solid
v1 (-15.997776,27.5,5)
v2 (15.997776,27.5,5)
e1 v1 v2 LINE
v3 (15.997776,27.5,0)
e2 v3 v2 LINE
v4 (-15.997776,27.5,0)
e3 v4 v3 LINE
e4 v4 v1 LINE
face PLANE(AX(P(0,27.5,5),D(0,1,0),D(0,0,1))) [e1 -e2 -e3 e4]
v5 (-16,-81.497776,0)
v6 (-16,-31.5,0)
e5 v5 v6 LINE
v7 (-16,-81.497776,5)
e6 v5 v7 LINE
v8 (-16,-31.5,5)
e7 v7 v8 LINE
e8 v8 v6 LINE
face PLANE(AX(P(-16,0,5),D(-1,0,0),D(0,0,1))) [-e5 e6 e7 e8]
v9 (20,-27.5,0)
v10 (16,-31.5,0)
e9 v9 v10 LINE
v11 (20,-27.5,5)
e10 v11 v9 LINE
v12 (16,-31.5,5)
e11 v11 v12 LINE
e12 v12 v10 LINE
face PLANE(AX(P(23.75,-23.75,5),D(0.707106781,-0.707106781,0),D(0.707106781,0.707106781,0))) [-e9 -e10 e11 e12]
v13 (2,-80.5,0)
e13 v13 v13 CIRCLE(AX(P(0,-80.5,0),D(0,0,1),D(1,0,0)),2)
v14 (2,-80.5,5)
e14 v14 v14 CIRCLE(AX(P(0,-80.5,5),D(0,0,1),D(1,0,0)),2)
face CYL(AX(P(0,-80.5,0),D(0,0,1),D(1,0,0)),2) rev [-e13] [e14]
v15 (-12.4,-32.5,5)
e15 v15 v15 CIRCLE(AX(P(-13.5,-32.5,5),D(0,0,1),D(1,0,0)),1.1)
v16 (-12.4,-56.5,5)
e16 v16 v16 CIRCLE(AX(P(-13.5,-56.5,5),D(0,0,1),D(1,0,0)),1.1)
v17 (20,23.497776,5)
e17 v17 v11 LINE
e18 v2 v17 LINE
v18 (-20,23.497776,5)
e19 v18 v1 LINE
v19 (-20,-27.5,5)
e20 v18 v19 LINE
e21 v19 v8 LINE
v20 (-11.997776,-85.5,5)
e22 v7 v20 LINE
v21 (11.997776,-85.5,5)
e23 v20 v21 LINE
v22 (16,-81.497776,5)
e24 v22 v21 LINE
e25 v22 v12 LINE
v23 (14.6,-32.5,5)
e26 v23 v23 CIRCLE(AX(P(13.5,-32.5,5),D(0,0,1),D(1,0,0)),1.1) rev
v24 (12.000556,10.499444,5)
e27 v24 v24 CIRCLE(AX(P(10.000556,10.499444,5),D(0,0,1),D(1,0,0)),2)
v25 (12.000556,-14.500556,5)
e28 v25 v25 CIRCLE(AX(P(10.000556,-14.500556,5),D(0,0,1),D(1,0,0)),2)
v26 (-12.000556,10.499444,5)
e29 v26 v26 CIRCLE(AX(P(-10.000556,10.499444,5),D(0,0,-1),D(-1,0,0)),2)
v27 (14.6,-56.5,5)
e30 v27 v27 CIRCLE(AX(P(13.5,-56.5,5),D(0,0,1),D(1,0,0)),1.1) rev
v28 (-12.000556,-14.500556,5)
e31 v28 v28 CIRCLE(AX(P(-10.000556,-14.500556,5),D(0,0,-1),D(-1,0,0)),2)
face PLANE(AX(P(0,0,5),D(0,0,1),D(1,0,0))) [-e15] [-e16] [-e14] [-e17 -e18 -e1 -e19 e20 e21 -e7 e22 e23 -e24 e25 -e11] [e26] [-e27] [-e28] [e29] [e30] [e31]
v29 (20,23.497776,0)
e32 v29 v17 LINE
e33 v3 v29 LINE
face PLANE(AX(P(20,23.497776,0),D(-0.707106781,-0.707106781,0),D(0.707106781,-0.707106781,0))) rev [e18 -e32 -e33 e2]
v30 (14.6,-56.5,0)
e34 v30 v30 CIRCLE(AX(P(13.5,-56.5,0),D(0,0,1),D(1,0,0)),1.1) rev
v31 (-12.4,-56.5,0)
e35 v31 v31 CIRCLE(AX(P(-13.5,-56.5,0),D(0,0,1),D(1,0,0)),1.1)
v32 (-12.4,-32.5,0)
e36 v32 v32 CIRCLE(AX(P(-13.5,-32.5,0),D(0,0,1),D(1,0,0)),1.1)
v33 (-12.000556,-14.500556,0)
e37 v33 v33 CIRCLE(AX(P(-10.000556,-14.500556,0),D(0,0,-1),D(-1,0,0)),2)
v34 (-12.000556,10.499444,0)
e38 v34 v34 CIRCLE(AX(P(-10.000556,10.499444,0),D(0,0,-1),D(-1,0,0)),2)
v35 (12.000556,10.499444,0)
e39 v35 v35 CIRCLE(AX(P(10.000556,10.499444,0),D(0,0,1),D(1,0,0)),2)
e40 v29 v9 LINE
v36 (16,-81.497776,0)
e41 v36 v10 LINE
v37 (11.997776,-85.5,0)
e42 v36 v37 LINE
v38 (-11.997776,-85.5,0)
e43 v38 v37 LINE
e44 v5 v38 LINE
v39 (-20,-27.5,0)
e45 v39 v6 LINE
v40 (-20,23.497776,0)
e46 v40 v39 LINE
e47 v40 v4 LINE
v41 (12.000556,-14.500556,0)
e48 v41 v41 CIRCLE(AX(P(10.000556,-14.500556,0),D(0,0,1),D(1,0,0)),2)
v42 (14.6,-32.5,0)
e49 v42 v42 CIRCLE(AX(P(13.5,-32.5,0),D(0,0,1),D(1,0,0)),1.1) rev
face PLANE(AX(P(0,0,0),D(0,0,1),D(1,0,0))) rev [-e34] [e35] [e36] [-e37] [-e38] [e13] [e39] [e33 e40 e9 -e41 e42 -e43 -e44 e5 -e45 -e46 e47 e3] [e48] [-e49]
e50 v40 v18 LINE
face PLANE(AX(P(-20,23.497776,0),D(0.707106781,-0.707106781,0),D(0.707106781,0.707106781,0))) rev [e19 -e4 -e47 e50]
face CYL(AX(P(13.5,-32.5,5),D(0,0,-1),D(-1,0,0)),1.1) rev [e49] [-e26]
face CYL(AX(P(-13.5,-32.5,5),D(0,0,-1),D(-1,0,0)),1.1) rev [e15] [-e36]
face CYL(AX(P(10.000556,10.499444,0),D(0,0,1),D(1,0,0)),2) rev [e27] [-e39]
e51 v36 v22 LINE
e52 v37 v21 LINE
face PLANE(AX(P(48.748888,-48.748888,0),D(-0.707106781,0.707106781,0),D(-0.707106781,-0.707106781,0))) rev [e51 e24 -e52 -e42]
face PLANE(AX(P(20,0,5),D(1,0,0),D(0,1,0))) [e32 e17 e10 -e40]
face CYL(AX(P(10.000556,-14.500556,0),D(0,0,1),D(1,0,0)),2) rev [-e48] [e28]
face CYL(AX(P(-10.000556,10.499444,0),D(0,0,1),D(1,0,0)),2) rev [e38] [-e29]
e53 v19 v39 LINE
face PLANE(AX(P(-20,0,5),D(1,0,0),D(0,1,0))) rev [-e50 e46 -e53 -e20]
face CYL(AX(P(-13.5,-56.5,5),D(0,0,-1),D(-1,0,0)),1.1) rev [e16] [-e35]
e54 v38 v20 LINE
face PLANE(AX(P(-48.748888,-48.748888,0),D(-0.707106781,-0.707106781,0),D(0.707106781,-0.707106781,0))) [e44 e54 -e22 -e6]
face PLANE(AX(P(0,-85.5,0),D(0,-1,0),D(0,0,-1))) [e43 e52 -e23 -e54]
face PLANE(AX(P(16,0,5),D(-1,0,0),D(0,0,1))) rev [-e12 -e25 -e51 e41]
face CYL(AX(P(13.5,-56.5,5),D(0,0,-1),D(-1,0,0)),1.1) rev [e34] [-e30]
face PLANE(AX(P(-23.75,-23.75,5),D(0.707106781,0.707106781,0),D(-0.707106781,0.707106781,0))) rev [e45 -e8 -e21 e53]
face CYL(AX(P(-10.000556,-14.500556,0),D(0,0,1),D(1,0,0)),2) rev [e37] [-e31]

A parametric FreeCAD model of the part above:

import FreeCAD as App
import Part
import Sketcher
from FreeCAD import Vector
Q = App.Units.Quantity

doc = App.newDocument("Part")
body = doc.addObject("PartDesign::Body", "Body")

sketch1 = body.newObject("Sketcher::SketchObject", "Sketch")
sketch1.AttachmentSupport = (doc.getObject("XY_Plane"), [""])
sketch1.MapMode = "FlatFace"
sketch1.addGeometry(Part.LineSegment(Vector(20, 27.5, 0), Vector(-20, 27.5, 0)), False)
sketch1.addGeometry(Part.LineSegment(Vector(-20, 27.5, 0), Vector(-20, -27.5, 0)), False)
sketch1.addGeometry(Part.LineSegment(Vector(-20, -27.5, 0), Vector(-16, -31.5, 0)), False)
sketch1.addGeometry(Part.LineSegment(Vector(-16, -31.5, 0), Vector(-16, -61.5, 0)), False)
sketch1.addGeometry(Part.LineSegment(Vector(-16, -61.5, 0), Vector(16, -61.5, 0)), False)
sketch1.addGeometry(Part.LineSegment(Vector(16, -61.5, 0), Vector(16, -31.5, 0)), False)
sketch1.addGeometry(Part.LineSegment(Vector(16, -31.5, 0), Vector(20, -27.5, 0)), False)
sketch1.addGeometry(Part.LineSegment(Vector(20, -27.5, 0), Vector(20, 27.5, 0)), False)
sketch1.addGeometry(Part.Circle(Vector(-13.5, -56.5, 0), Vector(0, 0, 1), 1.1), False)
sketch1.addGeometry(Part.Circle(Vector(13.5, -56.5, 0), Vector(0, 0, 1), 1.1), False)
sketch1.addGeometry(Part.Circle(Vector(-13.5, -32.5, 0), Vector(0, 0, 1), 1.1), False)
sketch1.addGeometry(Part.Circle(Vector(13.5, -32.5, 0), Vector(0, 0, 1), 1.1), False)
sketch1.addConstraint(Sketcher.Constraint("Coincident", 0, 2, 1, 1))
sketch1.addConstraint(Sketcher.Constraint("Coincident", 1, 2, 2, 1))
sketch1.addConstraint(Sketcher.Constraint("Coincident", 2, 2, 3, 1))
sketch1.addConstraint(Sketcher.Constraint("Coincident", 3, 2, 4, 1))
sketch1.addConstraint(Sketcher.Constraint("Coincident", 4, 2, 5, 1))
sketch1.addConstraint(Sketcher.Constraint("Coincident", 5, 2, 6, 1))
sketch1.addConstraint(Sketcher.Constraint("Coincident", 6, 2, 7, 1))
sketch1.addConstraint(Sketcher.Constraint("Coincident", 7, 2, 0, 1))
sketch1.addConstraint(Sketcher.Constraint("Horizontal", 0))
sketch1.addConstraint(Sketcher.Constraint("Vertical", 1))
sketch1.addConstraint(Sketcher.Constraint("Vertical", 3))
sketch1.addConstraint(Sketcher.Constraint("Horizontal", 4))
sketch1.addConstraint(Sketcher.Constraint("Vertical", 5))
sketch1.addConstraint(Sketcher.Constraint("Vertical", 7))
sketch1.addConstraint(Sketcher.Constraint("Equal", 8, 9))
sketch1.addConstraint(Sketcher.Constraint("Equal", 9, 10))
sketch1.addConstraint(Sketcher.Constraint("Equal", 10, 11))
sketch1.addConstraint(Sketcher.Constraint("Symmetric", 0, 2, 6, 2, -1, 1))
sketch1.addConstraint(Sketcher.Constraint("Symmetric", 8, 3, 9, 3, -2))
sketch1.addConstraint(Sketcher.Constraint("Symmetric", 10, 3, 11, 3, -2))
sketch1.addConstraint(Sketcher.Constraint("Symmetric", 2, 2, 5, 2, -2))
sketch1.addConstraint(Sketcher.Constraint("Perpendicular", 2, 6))
sketch1.addConstraint(Sketcher.Constraint("Horizontal", 1, 2, 6, 2))
sketch1.addConstraint(Sketcher.Constraint("Vertical", 8, 3, 10, 3))
sketch1.addConstraint(Sketcher.Constraint("Diameter", 8, Q("2.2 mm")))
sketch1.addConstraint(Sketcher.Constraint("DistanceX", 0, 2, 0, 1, Q("40 mm")))
sketch1.addConstraint(Sketcher.Constraint("DistanceX", 4, 1, 4, 2, Q("32 mm")))
sketch1.addConstraint(Sketcher.Constraint("DistanceY", 1, 2, 1, 1, Q("55 mm")))
sketch1.addConstraint(Sketcher.Constraint("DistanceY", 3, 2, 3, 1, Q("30 mm")))
sketch1.addConstraint(Sketcher.Constraint("DistanceX", 8, 3, 9, 3, Q("27 mm")))
sketch1.addConstraint(Sketcher.Constraint("DistanceY", 8, 3, 10, 3, Q("24 mm")))
sketch1.addConstraint(Sketcher.Constraint("DistanceY", 10, 3, 0, 2, Q("60 mm")))
pad1 = body.newObject("PartDesign::Pad", "Pad")
pad1.Profile = sketch1
pad1.Length = 5

sketch2 = body.newObject("Sketcher::SketchObject", "Sketch001")
sketch2.AttachmentSupport = (doc.getObject("XY_Plane"), [""])
sketch2.MapMode = "FlatFace"
sketch2.AttachmentOffset = App.Placement(Vector(0, 0, 5), App.Rotation())
sketch2.addGeometry(Part.LineSegment(Vector(-20, 27.5, 0), Vector(-20, 23.5, 0)), False)
sketch2.addGeometry(Part.LineSegment(Vector(-20, 23.5, 0), Vector(-16, 27.5, 0)), False)
sketch2.addGeometry(Part.LineSegment(Vector(-16, 27.5, 0), Vector(-20, 27.5, 0)), False)
sketch2.addGeometry(Part.LineSegment(Vector(16, 27.5, 0), Vector(20, 23.5, 0)), False)
sketch2.addGeometry(Part.LineSegment(Vector(20, 23.5, 0), Vector(20, 27.5, 0)), False)
sketch2.addGeometry(Part.LineSegment(Vector(20, 27.5, 0), Vector(16, 27.5, 0)), False)
sketch2.addConstraint(Sketcher.Constraint("Coincident", 0, 2, 1, 1))
sketch2.addConstraint(Sketcher.Constraint("Coincident", 1, 2, 2, 1))
sketch2.addConstraint(Sketcher.Constraint("Coincident", 2, 2, 0, 1))
sketch2.addConstraint(Sketcher.Constraint("Coincident", 3, 2, 4, 1))
sketch2.addConstraint(Sketcher.Constraint("Coincident", 4, 2, 5, 1))
sketch2.addConstraint(Sketcher.Constraint("Coincident", 5, 2, 3, 1))
sketch2.addConstraint(Sketcher.Constraint("Vertical", 0))
sketch2.addConstraint(Sketcher.Constraint("Horizontal", 2))
sketch2.addConstraint(Sketcher.Constraint("Vertical", 4))
sketch2.addConstraint(Sketcher.Constraint("Horizontal", 5))
sketch2.addConstraint(Sketcher.Constraint("Symmetric", 0, 2, 3, 2, -2))
sketch2.addConstraint(Sketcher.Constraint("Symmetric", 1, 2, 5, 2, -2))
sketch2.addConstraint(Sketcher.Constraint("Perpendicular", 1, 3))
sketch2.addConstraint(Sketcher.Constraint("DistanceX", 0, 2, -1, 1, Q("20 mm")))
sketch2.addConstraint(Sketcher.Constraint("DistanceY", -1, 1, 1, 2, Q("27.5 mm")))
sketch2.addConstraint(Sketcher.Constraint("Distance", 1, Q("5.66 mm")))
pocket1 = body.newObject("PartDesign::Pocket", "Pocket")
pocket1.Profile = sketch2
pocket1.Type = "ThroughAll"

sketch3 = body.newObject("Sketcher::SketchObject", "Sketch002")
sketch3.AttachmentSupport = (doc.getObject("XY_Plane"), [""])
sketch3.MapMode = "FlatFace"
sketch3.AttachmentOffset = App.Placement(Vector(0, 0, 5), App.Rotation())
sketch3.addGeometry(Part.Circle(Vector(10, 10.5, 0), Vector(0, 0, 1), 2), False)
sketch3.addGeometry(Part.Circle(Vector(10, -14.5, 0), Vector(0, 0, 1), 2), False)
sketch3.addGeometry(Part.Circle(Vector(-10, 10.5, 0), Vector(0, 0, 1), 2), False)
sketch3.addGeometry(Part.Circle(Vector(-10, -14.5, 0), Vector(0, 0, 1), 2), False)
sketch3.addConstraint(Sketcher.Constraint("Equal", 0, 1))
sketch3.addConstraint(Sketcher.Constraint("Equal", 1, 2))
sketch3.addConstraint(Sketcher.Constraint("Equal", 2, 3))
sketch3.addConstraint(Sketcher.Constraint("Symmetric", 0, 3, 2, 3, -2))
sketch3.addConstraint(Sketcher.Constraint("Symmetric", 1, 3, 3, 3, -2))
sketch3.addConstraint(Sketcher.Constraint("Vertical", 0, 3, 1, 3))
sketch3.addConstraint(Sketcher.Constraint("Diameter", 0, Q("4 mm")))
sketch3.addConstraint(Sketcher.Constraint("DistanceY", 1, 3, 0, 3, Q("25 mm")))
sketch3.addConstraint(Sketcher.Constraint("DistanceX", -1, 1, 0, 3, Q("10.000556 mm")))
sketch3.addConstraint(Sketcher.Constraint("DistanceY", -1, 1, 0, 3, Q("10.499444 mm")))
pocket2 = body.newObject("PartDesign::Pocket", "Pocket001")
pocket2.Profile = sketch3
pocket2.Type = "ThroughAll"

sketch4 = body.newObject("Sketcher::SketchObject", "Sketch003")
sketch4.AttachmentSupport = (doc.getObject("XY_Plane"), [""])
sketch4.MapMode = "FlatFace"
sketch4.AttachmentOffset = App.Placement(Vector(0, 0, 5), App.Rotation())
sketch4.addGeometry(Part.LineSegment(Vector(-16, -62, 0), Vector(-16, -81, 0)), False)
sketch4.addGeometry(Part.LineSegment(Vector(-16, -81, 0), Vector(-12, -86, 0)), False)
sketch4.addGeometry(Part.LineSegment(Vector(-12, -86, 0), Vector(12, -86, 0)), False)
sketch4.addGeometry(Part.LineSegment(Vector(12, -86, 0), Vector(16, -81, 0)), False)
sketch4.addGeometry(Part.LineSegment(Vector(16, -81, 0), Vector(16, -62, 0)), False)
sketch4.addGeometry(Part.LineSegment(Vector(16, -62, 0), Vector(-16, -62, 0)), False)
sketch4.addConstraint(Sketcher.Constraint("Coincident", 0, 2, 1, 1))
sketch4.addConstraint(Sketcher.Constraint("Coincident", 1, 2, 2, 1))
sketch4.addConstraint(Sketcher.Constraint("Coincident", 2, 2, 3, 1))
sketch4.addConstraint(Sketcher.Constraint("Coincident", 3, 2, 4, 1))
sketch4.addConstraint(Sketcher.Constraint("Coincident", 4, 2, 5, 1))
sketch4.addConstraint(Sketcher.Constraint("Coincident", 5, 2, 0, 1))
sketch4.addConstraint(Sketcher.Constraint("Vertical", 0))
sketch4.addConstraint(Sketcher.Constraint("Horizontal", 2))
sketch4.addConstraint(Sketcher.Constraint("Vertical", 4))
sketch4.addConstraint(Sketcher.Constraint("Horizontal", 5))
sketch4.addConstraint(Sketcher.Constraint("Symmetric", 0, 2, 3, 2, -2))
sketch4.addConstraint(Sketcher.Constraint("Perpendicular", 1, 3))
sketch4.addConstraint(Sketcher.Constraint("Equal", 1, 3))
sketch4.addConstraint(Sketcher.Constraint("DistanceX", 5, 2, 5, 1, Q("32 mm")))
sketch4.addConstraint(Sketcher.Constraint("DistanceY", 2, 2, 4, 2, Q("24 mm")))
sketch4.addConstraint(Sketcher.Constraint("DistanceY", 1, 2, -1, 1, Q("85.5 mm")))
sketch4.addConstraint(Sketcher.Constraint("Distance", 1, Q("5.66 mm")))
pad2 = body.newObject("PartDesign::Pad", "Pad001")
pad2.Profile = sketch4
pad2.Length = 5
pad2.Reversed = True

sketch5 = body.newObject("Sketcher::SketchObject", "Sketch004")
sketch5.AttachmentSupport = (doc.getObject("XY_Plane"), [""])
sketch5.MapMode = "FlatFace"
sketch5.AttachmentOffset = App.Placement(Vector(0, 0, 5), App.Rotation())
sketch5.addGeometry(Part.Circle(Vector(0, -80.5, 0), Vector(0, 0, 1), 2), False)
sketch5.addConstraint(Sketcher.Constraint("PointOnObject", 0, 3, -2))
sketch5.addConstraint(Sketcher.Constraint("Diameter", 0, Q("4 mm")))
sketch5.addConstraint(Sketcher.Constraint("DistanceY", 0, 3, -1, 1, Q("80.5 mm")))
pocket3 = body.newObject("PartDesign::Pocket", "Pocket002")
pocket3.Profile = sketch5
pocket3.Type = "ThroughAll"

doc.recompute()
